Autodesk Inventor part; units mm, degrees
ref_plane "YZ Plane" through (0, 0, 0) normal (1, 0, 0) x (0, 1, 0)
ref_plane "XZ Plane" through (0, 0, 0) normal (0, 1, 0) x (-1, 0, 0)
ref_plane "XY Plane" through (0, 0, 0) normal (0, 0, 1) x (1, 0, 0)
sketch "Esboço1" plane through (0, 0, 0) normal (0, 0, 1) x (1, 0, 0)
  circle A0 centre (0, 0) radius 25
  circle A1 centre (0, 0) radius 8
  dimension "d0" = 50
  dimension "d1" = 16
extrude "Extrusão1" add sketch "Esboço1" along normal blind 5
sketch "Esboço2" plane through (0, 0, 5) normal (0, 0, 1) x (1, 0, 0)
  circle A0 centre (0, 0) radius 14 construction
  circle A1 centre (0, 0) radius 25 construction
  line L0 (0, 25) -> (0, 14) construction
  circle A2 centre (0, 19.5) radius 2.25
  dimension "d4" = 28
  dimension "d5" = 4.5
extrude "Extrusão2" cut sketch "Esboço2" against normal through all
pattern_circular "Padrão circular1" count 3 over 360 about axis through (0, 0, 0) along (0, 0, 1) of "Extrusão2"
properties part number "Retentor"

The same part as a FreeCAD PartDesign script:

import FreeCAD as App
import Part
import Sketcher

V = App.Vector
Q = App.Units.Quantity

doc = App.newDocument("Part")
params = doc.addObject("Spreadsheet::Sheet", "Params")
for row, (alias, value) in enumerate([
    ("sketch1_diameter", "50 mm"),
    ("sketch1_diameter2", "16 mm"),
    ("pad1_length", "5 mm"),
    ("sketch2_diameter", "4.5 mm"),
], start=1):
    params.set(f"A{row}", alias)
    params.set(f"B{row}", "=" + value)
    params.setAlias(f"B{row}", alias)

body = doc.addObject("PartDesign::Body", "Body")

sketch1 = body.newObject("Sketcher::SketchObject", "Sketch")
sketch1.AttachmentSupport = (doc.getObject("XY_Plane"), [""])
sketch1.MapMode = "FlatFace"
sketch1.addGeometry([
    Part.Circle(V(0, 0, 0), V(0, 0, 1), 25),
    Part.Circle(V(0, 0, 0), V(0, 0, 1), 8),
], False)
sketch1.addConstraint([
    Sketcher.Constraint("Coincident", 0, 3, -1, 1),
    Sketcher.Constraint("Coincident", 1, 3, -1, 1),
    Sketcher.Constraint("Diameter", 0, Q("50 mm")),
    Sketcher.Constraint("Diameter", 1, Q("16 mm")),
])
sketch1.setExpression("Constraints[2]", "Params.sketch1_diameter")
sketch1.setExpression("Constraints[3]", "Params.sketch1_diameter2")
pad1 = body.newObject("PartDesign::Pad", "Pad")
pad1.Profile = sketch1
pad1.setExpression("Length", "Params.pad1_length")

sketch2 = body.newObject("Sketcher::SketchObject", "Sketch001")
sketch2.AttachmentSupport = (doc.getObject("XY_Plane"), [""])
sketch2.MapMode = "FlatFace"
sketch2.AttachmentOffset = App.Placement(V(0, 0, 5), App.Rotation())
sketch2.addGeometry(Part.Circle(V(0, 19.5, 0), V(0, 0, 1), 2.2), False)
sketch2.addConstraint([
    Sketcher.Constraint("PointOnObject", 0, 3, -2),
    Sketcher.Constraint("Diameter", 0, Q("4.5 mm")),
    Sketcher.Constraint("DistanceY", -1, 1, 0, 3, Q("19.5 mm")),
])
sketch2.setExpression("Constraints[1]", "Params.sketch2_diameter")
pocket1 = body.newObject("PartDesign::Pocket", "Pocket")
pocket1.Profile = sketch2
pocket1.Type = "ThroughAll"
doc.recompute()

polarpattern = body.newObject("PartDesign::PolarPattern", "PolarPattern")
polarpattern.Originals = [pocket1]
polarpattern.Axis = (doc.getObject("Z_Axis"), [""])
polarpattern.Angle = 360
polarpattern.Occurrences = 3
body.Tip = polarpattern

doc.recompute()
